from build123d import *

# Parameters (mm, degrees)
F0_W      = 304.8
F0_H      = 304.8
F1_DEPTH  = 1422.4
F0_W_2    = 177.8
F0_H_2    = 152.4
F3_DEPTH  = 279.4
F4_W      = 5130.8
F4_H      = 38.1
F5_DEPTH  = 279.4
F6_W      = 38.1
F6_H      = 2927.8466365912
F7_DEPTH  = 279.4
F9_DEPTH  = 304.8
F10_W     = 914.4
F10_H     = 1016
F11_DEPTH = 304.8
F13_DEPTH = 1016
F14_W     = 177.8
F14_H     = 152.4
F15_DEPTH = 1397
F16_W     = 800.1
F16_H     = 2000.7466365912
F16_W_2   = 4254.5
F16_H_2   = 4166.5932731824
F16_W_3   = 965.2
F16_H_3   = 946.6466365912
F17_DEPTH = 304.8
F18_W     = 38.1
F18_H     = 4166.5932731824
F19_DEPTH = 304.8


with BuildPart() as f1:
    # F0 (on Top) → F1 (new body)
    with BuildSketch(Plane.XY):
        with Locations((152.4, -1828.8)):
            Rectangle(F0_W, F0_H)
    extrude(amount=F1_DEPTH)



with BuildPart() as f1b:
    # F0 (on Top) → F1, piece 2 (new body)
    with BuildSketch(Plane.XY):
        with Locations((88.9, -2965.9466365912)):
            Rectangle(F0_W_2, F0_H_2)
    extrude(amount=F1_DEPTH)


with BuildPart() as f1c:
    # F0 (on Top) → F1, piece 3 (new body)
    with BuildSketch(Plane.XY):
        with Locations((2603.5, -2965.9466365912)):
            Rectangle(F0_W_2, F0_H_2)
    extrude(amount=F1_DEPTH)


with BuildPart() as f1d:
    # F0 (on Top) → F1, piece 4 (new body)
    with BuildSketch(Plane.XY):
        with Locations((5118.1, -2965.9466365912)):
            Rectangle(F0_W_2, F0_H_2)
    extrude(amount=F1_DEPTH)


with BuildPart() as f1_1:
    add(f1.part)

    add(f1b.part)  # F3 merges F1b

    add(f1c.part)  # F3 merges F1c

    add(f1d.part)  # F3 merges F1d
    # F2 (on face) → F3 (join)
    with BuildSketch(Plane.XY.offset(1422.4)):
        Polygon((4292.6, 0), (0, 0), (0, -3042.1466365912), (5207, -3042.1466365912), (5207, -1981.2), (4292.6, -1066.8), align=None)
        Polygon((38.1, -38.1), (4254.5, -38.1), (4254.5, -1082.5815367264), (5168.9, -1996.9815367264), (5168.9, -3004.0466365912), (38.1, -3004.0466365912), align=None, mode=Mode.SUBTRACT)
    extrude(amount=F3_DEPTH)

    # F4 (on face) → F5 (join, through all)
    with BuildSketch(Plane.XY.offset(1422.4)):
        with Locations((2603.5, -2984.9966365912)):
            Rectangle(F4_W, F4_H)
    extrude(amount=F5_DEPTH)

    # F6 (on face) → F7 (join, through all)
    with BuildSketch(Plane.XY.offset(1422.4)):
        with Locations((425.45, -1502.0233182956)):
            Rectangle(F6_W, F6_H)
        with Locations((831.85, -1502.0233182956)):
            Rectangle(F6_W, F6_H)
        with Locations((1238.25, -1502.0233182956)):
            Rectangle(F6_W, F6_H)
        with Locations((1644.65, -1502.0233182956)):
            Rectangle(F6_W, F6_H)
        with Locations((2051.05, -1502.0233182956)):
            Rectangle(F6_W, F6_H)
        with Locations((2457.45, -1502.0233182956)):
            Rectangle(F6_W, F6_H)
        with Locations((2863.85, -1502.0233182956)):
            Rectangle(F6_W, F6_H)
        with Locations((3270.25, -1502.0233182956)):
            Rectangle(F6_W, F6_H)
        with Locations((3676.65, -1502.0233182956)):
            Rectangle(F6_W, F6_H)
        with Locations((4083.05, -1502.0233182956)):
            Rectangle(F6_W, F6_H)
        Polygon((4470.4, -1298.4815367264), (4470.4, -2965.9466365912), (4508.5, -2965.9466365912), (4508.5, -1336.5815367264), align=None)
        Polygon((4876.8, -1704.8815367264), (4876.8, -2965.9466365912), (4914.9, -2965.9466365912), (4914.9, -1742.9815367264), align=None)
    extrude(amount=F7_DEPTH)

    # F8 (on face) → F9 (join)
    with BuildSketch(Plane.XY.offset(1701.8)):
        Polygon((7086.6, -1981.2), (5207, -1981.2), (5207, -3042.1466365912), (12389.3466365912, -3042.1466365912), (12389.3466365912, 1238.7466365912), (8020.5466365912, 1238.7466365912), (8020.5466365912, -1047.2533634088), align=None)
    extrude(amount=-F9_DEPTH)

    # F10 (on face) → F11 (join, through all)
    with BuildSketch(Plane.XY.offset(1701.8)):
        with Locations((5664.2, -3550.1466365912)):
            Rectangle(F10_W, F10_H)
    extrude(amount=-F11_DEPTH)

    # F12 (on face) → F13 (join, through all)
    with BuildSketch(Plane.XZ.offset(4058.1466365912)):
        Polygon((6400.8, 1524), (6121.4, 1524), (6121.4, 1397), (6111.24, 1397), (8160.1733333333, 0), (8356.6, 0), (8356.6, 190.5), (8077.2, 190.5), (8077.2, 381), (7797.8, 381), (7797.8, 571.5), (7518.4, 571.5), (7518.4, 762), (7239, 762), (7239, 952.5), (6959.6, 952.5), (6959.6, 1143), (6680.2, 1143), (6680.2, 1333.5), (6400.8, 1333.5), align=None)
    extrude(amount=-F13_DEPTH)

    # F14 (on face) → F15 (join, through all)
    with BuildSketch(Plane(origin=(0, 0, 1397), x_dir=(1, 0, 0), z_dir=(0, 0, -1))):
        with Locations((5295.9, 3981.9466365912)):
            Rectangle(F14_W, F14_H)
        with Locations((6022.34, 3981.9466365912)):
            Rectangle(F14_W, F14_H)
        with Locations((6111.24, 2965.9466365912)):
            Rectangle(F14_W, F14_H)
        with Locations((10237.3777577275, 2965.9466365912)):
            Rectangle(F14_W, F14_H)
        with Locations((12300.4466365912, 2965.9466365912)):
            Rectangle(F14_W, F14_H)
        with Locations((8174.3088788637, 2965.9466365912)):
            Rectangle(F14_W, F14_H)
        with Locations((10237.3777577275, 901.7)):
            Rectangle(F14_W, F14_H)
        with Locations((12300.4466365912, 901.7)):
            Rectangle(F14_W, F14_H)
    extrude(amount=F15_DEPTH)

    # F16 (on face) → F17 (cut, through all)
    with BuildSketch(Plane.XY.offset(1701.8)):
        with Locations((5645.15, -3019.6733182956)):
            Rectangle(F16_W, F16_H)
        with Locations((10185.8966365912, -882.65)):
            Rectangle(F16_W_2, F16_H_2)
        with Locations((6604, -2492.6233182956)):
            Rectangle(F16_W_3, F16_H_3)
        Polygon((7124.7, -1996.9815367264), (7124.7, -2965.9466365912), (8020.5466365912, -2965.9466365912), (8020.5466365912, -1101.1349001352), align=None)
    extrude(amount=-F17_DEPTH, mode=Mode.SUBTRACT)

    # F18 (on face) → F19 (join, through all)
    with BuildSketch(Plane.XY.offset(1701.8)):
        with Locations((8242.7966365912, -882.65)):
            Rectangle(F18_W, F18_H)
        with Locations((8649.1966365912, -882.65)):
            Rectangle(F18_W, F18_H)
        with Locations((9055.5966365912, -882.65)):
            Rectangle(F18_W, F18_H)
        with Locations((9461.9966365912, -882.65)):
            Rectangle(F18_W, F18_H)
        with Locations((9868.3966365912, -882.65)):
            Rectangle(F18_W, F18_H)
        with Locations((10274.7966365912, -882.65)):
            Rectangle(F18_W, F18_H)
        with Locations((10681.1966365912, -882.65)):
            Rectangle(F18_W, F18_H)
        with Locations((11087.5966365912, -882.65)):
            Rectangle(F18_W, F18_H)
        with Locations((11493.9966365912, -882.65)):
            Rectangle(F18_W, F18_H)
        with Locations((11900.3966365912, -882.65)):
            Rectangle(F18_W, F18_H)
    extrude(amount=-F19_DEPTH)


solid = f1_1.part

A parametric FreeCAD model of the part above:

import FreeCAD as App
import Part
import Sketcher
from FreeCAD import Vector
Q = App.Units.Quantity


def add_polygon(sketch, points):
    """Adds a closed chain of lines whose ends are joined by coincident constraints."""
    first, n = sketch.GeometryCount, len(points)
    for a, b in zip(points, points[1:] + points[:1]):
        sketch.addGeometry(Part.LineSegment(App.Vector(*a, 0), App.Vector(*b, 0)), False)
    for i in range(n):
        sketch.addConstraint(Sketcher.Constraint("Coincident", first + i, 2, first + (i + 1) % n, 1))

doc = App.newDocument("Part")
body = doc.addObject("PartDesign::Body", "Body")

sketch1 = body.newObject("Sketcher::SketchObject", "Sketch")
sketch1.AttachmentSupport = (doc.getObject("XY_Plane"), [""])
sketch1.MapMode = "FlatFace"
add_polygon(sketch1, [(0, -1676), (0, -1981), (305, -1981), (305, -1676)])
sketch1.addConstraint([
    Sketcher.Constraint("Vertical", 0),
    Sketcher.Constraint("Horizontal", 1),
    Sketcher.Constraint("Vertical", 2),
    Sketcher.Constraint("Horizontal", 3),
    Sketcher.Constraint("PointOnObject", 0, 2, -2),
    Sketcher.Constraint("Equal", 3, 0),
    Sketcher.Constraint("DistanceX", 1, 1, 1, 2, Q("12 in")),
    Sketcher.Constraint("DistanceY", 0, 2, -1, 1, Q("78 in")),
])
pad1 = body.newObject("PartDesign::Pad", "Pad")
pad1.Profile = sketch1
pad1.Length = Q("56 in")
body2 = doc.addObject("PartDesign::Body", "Body001")

sketch2 = body2.newObject("Sketcher::SketchObject", "Sketch001")
sketch2.AttachmentSupport = (doc.getObject("XY_Plane001"), [""])
sketch2.MapMode = "FlatFace"
add_polygon(sketch2, [(0, -2890), (0, -3042), (178, -3042), (178, -2890)])
sketch2.addConstraint([
    Sketcher.Constraint("Vertical", 0),
    Sketcher.Constraint("Horizontal", 1),
    Sketcher.Constraint("Vertical", 2),
    Sketcher.Constraint("Horizontal", 3),
    Sketcher.Constraint("PointOnObject", 0, 2, -2),
    Sketcher.Constraint("DistanceX", 1, 1, 1, 2, Q("7 in")),
    Sketcher.Constraint("DistanceY", 0, 2, 0, 1, Q("6 in")),
    Sketcher.Constraint("DistanceY", 0, 2, -1, 1, 3042.146637),
])
pad2 = body2.newObject("PartDesign::Pad", "Pad001")
pad2.Profile = sketch2
pad2.Length = Q("56 in")
body3 = doc.addObject("PartDesign::Body", "Body002")

sketch3 = body3.newObject("Sketcher::SketchObject", "Sketch002")
sketch3.AttachmentSupport = (doc.getObject("XY_Plane002"), [""])
sketch3.MapMode = "FlatFace"
add_polygon(sketch3, [(2515, -2890), (2515, -3042), (2692, -3042), (2692, -2890)])
sketch3.addConstraint([
    Sketcher.Constraint("Vertical", 0),
    Sketcher.Constraint("Horizontal", 1),
    Sketcher.Constraint("Vertical", 2),
    Sketcher.Constraint("Horizontal", 3),
    Sketcher.Constraint("DistanceX", 1, 1, 1, 2, Q("7 in")),
    Sketcher.Constraint("DistanceY", 0, 2, 0, 1, Q("6 in")),
    Sketcher.Constraint("DistanceX", -1, 1, 0, 2, Q("99 in")),
    Sketcher.Constraint("DistanceY", 0, 2, -1, 1, 3042.146637),
])
pad3 = body3.newObject("PartDesign::Pad", "Pad002")
pad3.Profile = sketch3
pad3.Length = Q("56 in")
body4 = doc.addObject("PartDesign::Body", "Body003")

sketch4 = body4.newObject("Sketcher::SketchObject", "Sketch003")
sketch4.AttachmentSupport = (doc.getObject("XY_Plane003"), [""])
sketch4.MapMode = "FlatFace"
add_polygon(sketch4, [(5029, -2890), (5029, -3042), (5207, -3042), (5207, -2890)])
sketch4.addConstraint([
    Sketcher.Constraint("Vertical", 0),
    Sketcher.Constraint("Horizontal", 1),
    Sketcher.Constraint("Vertical", 2),
    Sketcher.Constraint("Horizontal", 3),
    Sketcher.Constraint("DistanceX", 1, 1, 1, 2, Q("7 in")),
    Sketcher.Constraint("DistanceY", 0, 2, 0, 1, Q("6 in")),
    Sketcher.Constraint("DistanceX", -1, 1, 0, 2, Q("198 in")),
    Sketcher.Constraint("DistanceY", 0, 2, -1, 1, 3042.146637),
])
pad4 = body4.newObject("PartDesign::Pad", "Pad003")
pad4.Profile = sketch4
pad4.Length = Q("56 in")
body.AllowCompound = True
doc.recompute()

boolean = body.newObject("PartDesign::Boolean", "Boolean")
boolean.Type = "Fuse"
boolean.addObjects([body2])
doc.recompute()

boolean2 = body.newObject("PartDesign::Boolean", "Boolean001")
boolean2.Type = "Fuse"
boolean2.addObjects([body3])
doc.recompute()

boolean3 = body.newObject("PartDesign::Boolean", "Boolean002")
boolean3.Type = "Fuse"
boolean3.addObjects([body4])

sketch5 = body.newObject("Sketcher::SketchObject", "Sketch004")
sketch5.AttachmentSupport = (doc.getObject("XY_Plane"), [""])
sketch5.MapMode = "FlatFace"
sketch5.AttachmentOffset = App.Placement(Vector(0, 0, 56 * 25.4), App.Rotation())
add_polygon(sketch5, [(4293, 0), (0, 0), (0, -3042), (5207, -3042), (5207, -1981), (4293, -1067)])
add_polygon(sketch5, [(38, -3004), (38, -38), (4254, -38), (4254, -1083), (5169, -1997), (5169, -3004)])
sketch5.addConstraint([
    Sketcher.Constraint("Horizontal", 0),
    Sketcher.Constraint("Vertical", 1),
    Sketcher.Constraint("Horizontal", 2),
    Sketcher.Constraint("Vertical", 3),
    Sketcher.Constraint("Vertical", 5),
    Sketcher.Constraint("Vertical", 6),
    Sketcher.Constraint("Horizontal", 7),
    Sketcher.Constraint("Vertical", 8),
    Sketcher.Constraint("Vertical", 10),
    Sketcher.Constraint("Horizontal", 11),
    Sketcher.Constraint("Coincident", 0, 2, -1, 1),
    Sketcher.Constraint("Parallel", 4, 9),
    Sketcher.Constraint("Equal", 4, 9),
    Sketcher.Constraint("DistanceX", 0, 2, 0, 1, Q("169 in")),
    Sketcher.Constraint("DistanceX", 2, 1, 2, 2, Q("205 in")),
    Sketcher.Constraint("DistanceX", 7, 1, 7, 2, Q("166 in")),
    Sketcher.Constraint("DistanceY", 5, 1, 5, 2, Q("42 in")),
    Sketcher.Constraint("DistanceY", 3, 2, -1, 1, Q("78 in")),
    Sketcher.Constraint("DistanceX", -1, 1, 6, 2, Q("1.5 in")),
    Sketcher.Constraint("DistanceY", 6, 2, -1, 1, Q("1.5 in")),
    Sketcher.Constraint("DistanceY", 2, 2, 10, 2, Q("1.5 in")),
    Sketcher.Constraint("DistanceY", 10, 2, 10, 1, 1007.0651),
    Sketcher.Constraint("DistanceY", 1, 2, 1, 1, 3042.146637),
])
pad5 = body.newObject("PartDesign::Pad", "Pad004")
pad5.Profile = sketch5
pad5.Length = Q("11 in")

sketch6 = body.newObject("Sketcher::SketchObject", "Sketch005")
sketch6.AttachmentSupport = (doc.getObject("XY_Plane"), [""])
sketch6.MapMode = "FlatFace"
sketch6.AttachmentOffset = App.Placement(Vector(0, 0, 56 * 25.4), App.Rotation())
add_polygon(sketch6, [(38, -2966), (38, -3004), (5169, -3004), (5169, -2966)])
sketch6.addConstraint([
    Sketcher.Constraint("Vertical", 0),
    Sketcher.Constraint("Horizontal", 1),
    Sketcher.Constraint("Vertical", 2),
    Sketcher.Constraint("Horizontal", 3),
    Sketcher.Constraint("DistanceX", 1, 1, 1, 2, Q("202 in")),
    Sketcher.Constraint("DistanceY", 0, 2, 0, 1, Q("1.5 in")),
    Sketcher.Constraint("DistanceX", -1, 1, 0, 2, Q("1.5 in")),
    Sketcher.Constraint("DistanceY", 0, 2, -1, 1, 3004.046637),
])
pad6 = body.newObject("PartDesign::Pad", "Pad005")
pad6.Profile = sketch6
pad6.Length = Q("11 in")

sketch7 = body.newObject("Sketcher::SketchObject", "Sketch006")
sketch7.AttachmentSupport = (doc.getObject("XY_Plane"), [""])
sketch7.MapMode = "FlatFace"
sketch7.AttachmentOffset = App.Placement(Vector(0, 0, 56 * 25.4), App.Rotation())
add_polygon(sketch7, [(406, -38), (406, -2966), (444, -2966), (444, -38)])
add_polygon(sketch7, [(813, -38), (813, -2966), (851, -2966), (851, -38)])
add_polygon(sketch7, [(1219, -38), (1219, -2966), (1257, -2966), (1257, -38)])
add_polygon(sketch7, [(1626, -38), (1626, -2966), (1664, -2966), (1664, -38)])
add_polygon(sketch7, [(2032, -38), (2032, -2966), (2070, -2966), (2070, -38)])
add_polygon(sketch7, [(2438, -38), (2438, -2966), (2476, -2966), (2476, -38)])
add_polygon(sketch7, [(2845, -38), (2845, -2966), (2883, -2966), (2883, -38)])
add_polygon(sketch7, [(3251, -38), (3251, -2966), (3289, -2966), (3289, -38)])
add_polygon(sketch7, [(3658, -38), (3658, -2966), (3696, -2966), (3696, -38)])
add_polygon(sketch7, [(4064, -38), (4064, -2966), (4102, -2966), (4102, -38)])
add_polygon(sketch7, [(4470, -1298), (4470, -2966), (4508, -2966), (4508, -1337)])
add_polygon(sketch7, [(4877, -1705), (4877, -2966), (4915, -2966), (4915, -1743)])
sketch7.addConstraint([
    Sketcher.Constraint("Vertical", 0),
    Sketcher.Constraint("Horizontal", 1),
    Sketcher.Constraint("Vertical", 2),
    Sketcher.Constraint("Horizontal", 3),
    Sketcher.Constraint("Vertical", 4),
    Sketcher.Constraint("Horizontal", 5),
    Sketcher.Constraint("Vertical", 6),
    Sketcher.Constraint("Horizontal", 7),
    Sketcher.Constraint("Vertical", 8),
    Sketcher.Constraint("Horizontal", 9),
    Sketcher.Constraint("Vertical", 10),
    Sketcher.Constraint("Horizontal", 11),
    Sketcher.Constraint("Vertical", 12),
    Sketcher.Constraint("Horizontal", 13),
    Sketcher.Constraint("Vertical", 14),
    Sketcher.Constraint("Horizontal", 15),
    Sketcher.Constraint("Vertical", 16),
    Sketcher.Constraint("Horizontal", 17),
    Sketcher.Constraint("Vertical", 18),
    Sketcher.Constraint("Horizontal", 19),
    Sketcher.Constraint("Vertical", 20),
    Sketcher.Constraint("Horizontal", 21),
    Sketcher.Constraint("Vertical", 22),
    Sketcher.Constraint("Horizontal", 23),
    Sketcher.Constraint("Vertical", 24),
    Sketcher.Constraint("Horizontal", 25),
    Sketcher.Constraint("Vertical", 26),
    Sketcher.Constraint("Horizontal", 27),
    Sketcher.Constraint("Vertical", 28),
    Sketcher.Constraint("Horizontal", 29),
    Sketcher.Constraint("Vertical", 30),
    Sketcher.Constraint("Horizontal", 31),
    Sketcher.Constraint("Vertical", 32),
    Sketcher.Constraint("Horizontal", 33),
    Sketcher.Constraint("Vertical", 34),
    Sketcher.Constraint("Horizontal", 35),
    Sketcher.Constraint("Vertical", 36),
    Sketcher.Constraint("Horizontal", 37),
    Sketcher.Constraint("Vertical", 38),
    Sketcher.Constraint("Horizontal", 39),
    Sketcher.Constraint("Vertical", 40),
    Sketcher.Constraint("Horizontal", 41),
    Sketcher.Constraint("Vertical", 42),
    Sketcher.Constraint("Vertical", 44),
    Sketcher.Constraint("Horizontal", 45),
    Sketcher.Constraint("Vertical", 46),
    Sketcher.Constraint("Parallel", 43, 47),
    Sketcher.Constraint("Horizontal", 1, 2, 4, 2),
    Sketcher.Constraint("Horizontal", 3, 2, 6, 2),
    Sketcher.Constraint("Horizontal", 5, 2, 8, 2),
    Sketcher.Constraint("Horizontal", 7, 2, 10, 2),
    Sketcher.Constraint("Horizontal", 9, 2, 12, 2),
    Sketcher.Constraint("Horizontal", 11, 2, 14, 2),
    Sketcher.Constraint("Horizontal", 13, 2, 16, 2),
    Sketcher.Constraint("Horizontal", 15, 2, 18, 2),
    Sketcher.Constraint("Horizontal", 17, 2, 20, 2),
    Sketcher.Constraint("Horizontal", 19, 2, 22, 2),
    Sketcher.Constraint("Horizontal", 21, 2, 24, 2),
    Sketcher.Constraint("Horizontal", 23, 2, 26, 2),
    Sketcher.Constraint("Horizontal", 25, 2, 28, 2),
    Sketcher.Constraint("Horizontal", 27, 2, 30, 2),
    Sketcher.Constraint("Horizontal", 29, 2, 32, 2),
    Sketcher.Constraint("Horizontal", 31, 2, 34, 2),
    Sketcher.Constraint("Horizontal", 33, 2, 36, 2),
    Sketcher.Constraint("Horizontal", 35, 2, 38, 2),
    Sketcher.Constraint("Horizontal", 37, 2, 40, 2),
    Sketcher.Constraint("Horizontal", 41, 2, 44, 2),
    Sketcher.Constraint("Equal", 3, 5),
    Sketcher.Constraint("Equal", 7, 9),
    Sketcher.Constraint("Equal", 11, 13),
    Sketcher.Constraint("Equal", 15, 17),
    Sketcher.Constraint("Equal", 19, 21),
    Sketcher.Constraint("Equal", 23, 25),
    Sketcher.Constraint("Equal", 27, 29),
    Sketcher.Constraint("Equal", 31, 33),
    Sketcher.Constraint("Equal", 35, 37),
    Sketcher.Constraint("Equal", 39, 41),
    Sketcher.Constraint("Equal", 41, 45),
    Sketcher.Constraint("DistanceX", 1, 1, 1, 2, Q("1.5 in")),
    Sketcher.Constraint("DistanceX", -1, 1, 0, 2, Q("16 in")),
    Sketcher.Constraint("DistanceX", -1, 1, 4, 2, Q("32 in")),
    Sketcher.Constraint("DistanceX", -1, 1, 8, 2, Q("48 in")),
    Sketcher.Constraint("DistanceX", -1, 1, 12, 2, Q("64 in")),
    Sketcher.Constraint("DistanceX", -1, 1, 16, 2, Q("80 in")),
    Sketcher.Constraint("DistanceX", -1, 1, 20, 2, Q("96 in")),
    Sketcher.Constraint("DistanceX", -1, 1, 24, 2, Q("112 in")),
    Sketcher.Constraint("DistanceX", -1, 1, 28, 2, Q("128 in")),
    Sketcher.Constraint("DistanceX", -1, 1, 32, 2, Q("144 in")),
    Sketcher.Constraint("DistanceX", -1, 1, 36, 2, Q("160 in")),
    Sketcher.Constraint("DistanceX", -1, 1, 40, 2, Q("176 in")),
    Sketcher.Constraint("DistanceX", -1, 1, 44, 2, Q("192 in")),
    Sketcher.Constraint("Angle", 43, Q("135 deg")),
    Sketcher.Constraint("DistanceY", 46, 2, 42, 2, Q("16 in")),
    Sketcher.Constraint("DistanceY", 2, 2, -1, 1, Q("1.5 in")),
    Sketcher.Constraint("DistanceY", 40, 2, 40, 1, 1667.4651),
    Sketcher.Constraint("DistanceY", 0, 2, 0, 1, 2927.846637),
])
pad7 = body.newObject("PartDesign::Pad", "Pad006")
pad7.Profile = sketch7
pad7.Length = Q("11 in")

sketch8 = body.newObject("Sketcher::SketchObject", "Sketch007")
sketch8.AttachmentSupport = (doc.getObject("XY_Plane"), [""])
sketch8.MapMode = "FlatFace"
sketch8.AttachmentOffset = App.Placement(Vector(0, 0, 67 * 25.4), App.Rotation())
add_polygon(sketch8, [(7087, -1981), (5207, -1981), (5207, -3042), (12389, -3042), (12389, 1239), (8021, 1239), (8021, -1047)])
sketch8.addConstraint([
    Sketcher.Constraint("Horizontal", 0),
    Sketcher.Constraint("Vertical", 1),
    Sketcher.Constraint("Horizontal", 2),
    Sketcher.Constraint("Vertical", 3),
    Sketcher.Constraint("Horizontal", 4),
    Sketcher.Constraint("Vertical", 5),
    Sketcher.Constraint("DistanceX", 0, 2, 0, 1, Q("74 in")),
    Sketcher.Constraint("DistanceX", 4, 2, 4, 1, Q("172 in")),
    Sketcher.Constraint("DistanceY", 5, 2, 5, 1, Q("90 in")),
    Sketcher.Constraint("Distance", 6, Q("52 in")),
    Sketcher.Constraint("DistanceX", -1, 1, 0, 2, Q("205 in")),
    Sketcher.Constraint("DistanceY", 0, 2, -1, 1, Q("78 in")),
    Sketcher.Constraint("Angle", 6, Q("-135 deg")),
    Sketcher.Constraint("DistanceY", 1, 2, 1, 1, 1060.946637),
])
pad8 = body.newObject("PartDesign::Pad", "Pad007")
pad8.Profile = sketch8
pad8.Length = Q("12 in")
pad8.Reversed = True

sketch9 = body.newObject("Sketcher::SketchObject", "Sketch008")
sketch9.AttachmentSupport = (doc.getObject("XY_Plane"), [""])
sketch9.MapMode = "FlatFace"
sketch9.AttachmentOffset = App.Placement(Vector(0, 0, 67 * 25.4), App.Rotation())
add_polygon(sketch9, [(5207, -3042), (5207, -4058), (6121, -4058), (6121, -3042)])
sketch9.addConstraint([
    Sketcher.Constraint("Vertical", 0),
    Sketcher.Constraint("Horizontal", 1),
    Sketcher.Constraint("Vertical", 2),
    Sketcher.Constraint("Horizontal", 3),
    Sketcher.Constraint("DistanceX", 1, 1, 1, 2, Q("36 in")),
    Sketcher.Constraint("DistanceY", 0, 2, 0, 1, Q("40 in")),
    Sketcher.Constraint("DistanceX", -1, 1, 0, 2, Q("205 in")),
    Sketcher.Constraint("DistanceY", 0, 2, -1, 1, 4058.146637),
])
pad9 = body.newObject("PartDesign::Pad", "Pad008")
pad9.Profile = sketch9
pad9.Length = Q("12 in")
pad9.Reversed = True

sketch10 = body.newObject("Sketcher::SketchObject", "Sketch009")
sketch10.AttachmentSupport = (doc.getObject("XZ_Plane"), [""])
sketch10.MapMode = "FlatFace"
sketch10.AttachmentOffset = App.Placement(Vector(0, 0, 4058.146637), App.Rotation())
add_polygon(sketch10, [(6401, 1524), (6121, 1524), (6121, 1397), (6111, 1397), (8160, 0), (8357, 0), (8357, 190), (8077, 190), (8077, 381), (7798, 381), (7798, 572), (7518, 572), (7518, 762), (7239, 762), (7239, 952), (6960, 952), (6960, 1143), (6680, 1143), (6680, 1334), (6401, 1334)])
sketch10.addConstraint([
    Sketcher.Constraint("Horizontal", 0),
    Sketcher.Constraint("Vertical", 1),
    Sketcher.Constraint("Horizontal", 2),
    Sketcher.Constraint("Horizontal", 4),
    Sketcher.Constraint("Vertical", 5),
    Sketcher.Constraint("Horizontal", 6),
    Sketcher.Constraint("Vertical", 7),
    Sketcher.Constraint("Horizontal", 8),
    Sketcher.Constraint("Vertical", 9),
    Sketcher.Constraint("Horizontal", 10),
    Sketcher.Constraint("Vertical", 11),
    Sketcher.Constraint("Horizontal", 12),
    Sketcher.Constraint("Vertical", 13),
    Sketcher.Constraint("Horizontal", 14),
    Sketcher.Constraint("Vertical", 15),
    Sketcher.Constraint("Horizontal", 16),
    Sketcher.Constraint("Vertical", 17),
    Sketcher.Constraint("Horizontal", 18),
    Sketcher.Constraint("Vertical", 19),
    Sketcher.Constraint("PointOnObject", 3, 2, -1),
    Sketcher.Constraint("Equal", 0, 6),
    Sketcher.Constraint("Equal", 6, 8),
    Sketcher.Constraint("Equal", 8, 10),
    Sketcher.Constraint("Equal", 10, 12),
    Sketcher.Constraint("Equal", 12, 14),
    Sketcher.Constraint("Equal", 14, 16),
    Sketcher.Constraint("Equal", 16, 18),
    Sketcher.Constraint("Equal", 5, 7),
    Sketcher.Constraint("Equal", 7, 9),
    Sketcher.Constraint("Equal", 9, 11),
    Sketcher.Constraint("Equal", 11, 13),
    Sketcher.Constraint("Equal", 13, 15),
    Sketcher.Constraint("Equal", 15, 17),
    Sketcher.Constraint("Equal", 17, 19),
    Sketcher.Constraint("DistanceX", 0, 2, 0, 1, Q("11 in")),
    Sketcher.Constraint("DistanceY", 1, 2, 1, 1, Q("5 in")),
    Sketcher.Constraint("DistanceX", 2, 2, 2, 1, Q("0.4 in")),
    Sketcher.Constraint("DistanceY", 5, 1, 5, 2, Q("7.5 in")),
    Sketcher.Constraint("DistanceX", -1, 1, 0, 2, Q("241 in")),
    Sketcher.Constraint("DistanceX", 4, 1, 4, 2, 196.426667),
])
pad10 = body.newObject("PartDesign::Pad", "Pad009")
pad10.Profile = sketch10
pad10.Length = Q("40 in")
pad10.Reversed = True

sketch11 = body.newObject("Sketcher::SketchObject", "Sketch010")
sketch11.AttachmentSupport = (doc.getObject("XY_Plane"), [""])
sketch11.MapMode = "FlatFace"
sketch11.AttachmentOffset = App.Placement(Vector(0, 0, 55 * 25.4), App.Rotation())
add_polygon(sketch11, [(5207, -4058), (5207, -3906), (5385, -3906), (5385, -4058)])
add_polygon(sketch11, [(5933, -4058), (5933, -3906), (6111, -3906), (6111, -4058)])
add_polygon(sketch11, [(6022, -3042), (6022, -2890), (6200, -2890), (6200, -3042)])
add_polygon(sketch11, [(10148, -3042), (10148, -2890), (10326, -2890), (10326, -3042)])
add_polygon(sketch11, [(12212, -3042), (12212, -2890), (12389, -2890), (12389, -3042)])
add_polygon(sketch11, [(8085, -3042), (8085, -2890), (8263, -2890), (8263, -3042)])
add_polygon(sketch11, [(10148, -978), (10148, -826), (10326, -826), (10326, -978)])
add_polygon(sketch11, [(12212, -978), (12212, -826), (12389, -826), (12389, -978)])
sketch11.addConstraint([
    Sketcher.Constraint("Vertical", 0),
    Sketcher.Constraint("Horizontal", 1),
    Sketcher.Constraint("Vertical", 2),
    Sketcher.Constraint("Horizontal", 3),
    Sketcher.Constraint("Vertical", 4),
    Sketcher.Constraint("Horizontal", 5),
    Sketcher.Constraint("Vertical", 6),
    Sketcher.Constraint("Horizontal", 7),
    Sketcher.Constraint("Vertical", 8),
    Sketcher.Constraint("Horizontal", 9),
    Sketcher.Constraint("Vertical", 10),
    Sketcher.Constraint("Horizontal", 11),
    Sketcher.Constraint("Vertical", 12),
    Sketcher.Constraint("Horizontal", 13),
    Sketcher.Constraint("Vertical", 14),
    Sketcher.Constraint("Horizontal", 15),
    Sketcher.Constraint("Vertical", 16),
    Sketcher.Constraint("Horizontal", 17),
    Sketcher.Constraint("Vertical", 18),
    Sketcher.Constraint("Horizontal", 19),
    Sketcher.Constraint("Vertical", 20),
    Sketcher.Constraint("Horizontal", 21),
    Sketcher.Constraint("Vertical", 22),
    Sketcher.Constraint("Horizontal", 23),
    Sketcher.Constraint("Vertical", 24),
    Sketcher.Constraint("Horizontal", 25),
    Sketcher.Constraint("Vertical", 26),
    Sketcher.Constraint("Horizontal", 27),
    Sketcher.Constraint("Vertical", 28),
    Sketcher.Constraint("Horizontal", 29),
    Sketcher.Constraint("Vertical", 30),
    Sketcher.Constraint("Horizontal", 31),
    Sketcher.Constraint("Horizontal", 1, 2, 4, 2),
    Sketcher.Constraint("Horizontal", 3, 2, 6, 2),
    Sketcher.Constraint("Horizontal", 9, 2, 12, 2),
    Sketcher.Constraint("Horizontal", 11, 2, 14, 2),
    Sketcher.Constraint("Horizontal", 13, 2, 16, 2),
    Sketcher.Constraint("Horizontal", 15, 2, 18, 2),
    Sketcher.Constraint("Horizontal", 17, 2, 20, 2),
    Sketcher.Constraint("Horizontal", 19, 2, 22, 2),
    Sketcher.Constraint("Horizontal", 25, 2, 28, 2),
    Sketcher.Constraint("Horizontal", 27, 2, 30, 2),
    Sketcher.Constraint("Vertical", 15, 2, 24, 2),
    Sketcher.Constraint("Vertical", 14, 2, 25, 2),
    Sketcher.Constraint("Vertical", 19, 2, 28, 2),
    Sketcher.Constraint("Vertical", 18, 2, 29, 2),
    Sketcher.Constraint("Equal", 3, 5),
    Sketcher.Constraint("Equal", 7, 9),
    Sketcher.Constraint("Equal", 11, 13),
    Sketcher.Constraint("Equal", 15, 17),
    Sketcher.Constraint("Equal", 19, 21),
    Sketcher.Constraint("Equal", 6, 8),
    Sketcher.Constraint("Equal", 22, 24),
    Sketcher.Constraint("DistanceX", 1, 1, 1, 2, Q("7 in")),
    Sketcher.Constraint("DistanceY", 0, 1, 0, 2, Q("6 in")),
    Sketcher.Constraint("DistanceX", -1, 1, 0, 2, Q("205 in")),
    Sketcher.Constraint("DistanceY", 5, 2, 8, 2, Q("40 in")),
    Sketcher.Constraint("DistanceX", -1, 1, 4, 2, Q("233.6 in")),
    Sketcher.Constraint("DistanceX", -1, 1, 8, 2, Q("237.1 in")),
    Sketcher.Constraint("DistanceY", 24, 2, -1, 1, Q("32.5 in")),
    Sketcher.Constraint("DistanceX", -1, 1, 20, 2, 8085.408879),
    Sketcher.Constraint("DistanceX", 13, 2, 16, 2, 1885.268879),
    Sketcher.Constraint("DistanceX", 20, 2, 12, 2, 2063.068879),
    Sketcher.Constraint("DistanceY", 0, 2, -1, 1, 3905.746637),
])
pad11 = body.newObject("PartDesign::Pad", "Pad010")
pad11.Profile = sketch11
pad11.Length = Q("55 in")
pad11.Reversed = True

sketch12 = body.newObject("Sketcher::SketchObject", "Sketch011")
sketch12.AttachmentSupport = (doc.getObject("XY_Plane"), [""])
sketch12.MapMode = "FlatFace"
sketch12.AttachmentOffset = App.Placement(Vector(0, 0, 67 * 25.4), App.Rotation())
add_polygon(sketch12, [(5245, -2019), (5245, -4020), (6045, -4020), (6045, -2019)])
add_polygon(sketch12, [(8059, 1201), (8059, -2966), (12313, -2966), (12313, 1201)])
add_polygon(sketch12, [(6121, -2019), (6121, -2966), (7087, -2966), (7087, -2019)])
add_polygon(sketch12, [(7125, -1997), (7125, -2966), (8021, -2966), (8021, -1101)])
sketch12.addConstraint([
    Sketcher.Constraint("Vertical", 0),
    Sketcher.Constraint("Horizontal", 1),
    Sketcher.Constraint("Vertical", 2),
    Sketcher.Constraint("Horizontal", 3),
    Sketcher.Constraint("Vertical", 4),
    Sketcher.Constraint("Horizontal", 5),
    Sketcher.Constraint("Vertical", 6),
    Sketcher.Constraint("Horizontal", 7),
    Sketcher.Constraint("Vertical", 8),
    Sketcher.Constraint("Horizontal", 9),
    Sketcher.Constraint("Vertical", 10),
    Sketcher.Constraint("Horizontal", 11),
    Sketcher.Constraint("Vertical", 12),
    Sketcher.Constraint("Horizontal", 13),
    Sketcher.Constraint("Vertical", 14),
    Sketcher.Constraint("Horizontal", 5, 2, 8, 2),
    Sketcher.Constraint("Horizontal", 3, 2, 10, 2),
    Sketcher.Constraint("Horizontal", 9, 2, 12, 2),
    Sketcher.Constraint("DistanceX", 9, 1, 9, 2, Q("38 in")),
    Sketcher.Constraint("DistanceX", 1, 1, 1, 2, Q("31.5 in")),
    Sketcher.Constraint("DistanceX", 5, 1, 5, 2, Q("167.5 in")),
    Sketcher.Constraint("DistanceX", -1, 1, 1, 2, Q("238 in")),
    Sketcher.Constraint("DistanceX", -1, 1, 8, 2, Q("241 in")),
    Sketcher.Constraint("Angle", 15, Q("-135 deg")),
    Sketcher.Constraint("DistanceY", 2, 2, -1, 1, Q("79.5 in")),
    Sketcher.Constraint("DistanceX", -1, 1, 12, 2, Q("280.5 in")),
    Sketcher.Constraint("DistanceY", 1, 2, 4, 2, Q("41.5 in")),
    Sketcher.Constraint("DistanceX", 13, 2, 4, 2, Q("1.5 in")),
    Sketcher.Constraint("DistanceY", 12, 2, 12, 1, 968.9651),
    Sketcher.Constraint("DistanceY", 14, 2, -1, 1, 1101.1349),
    Sketcher.Constraint("DistanceX", 13, 1, 13, 2, 895.846637),
    Sketcher.Constraint("DistanceY", 4, 2, 4, 1, 4166.593273),
])
pocket1 = body.newObject("PartDesign::Pocket", "Pocket")
pocket1.Profile = sketch12
pocket1.Length = Q("12 in")

sketch13 = body.newObject("Sketcher::SketchObject", "Sketch012")
sketch13.AttachmentSupport = (doc.getObject("XY_Plane"), [""])
sketch13.MapMode = "FlatFace"
sketch13.AttachmentOffset = App.Placement(Vector(0, 0, 67 * 25.4), App.Rotation())
add_polygon(sketch13, [(8224, 1201), (8224, -2966), (8262, -2966), (8262, 1201)])
add_polygon(sketch13, [(8630, 1201), (8630, -2966), (8668, -2966), (8668, 1201)])
add_polygon(sketch13, [(9037, 1201), (9037, -2966), (9075, -2966), (9075, 1201)])
add_polygon(sketch13, [(9443, 1201), (9443, -2966), (9481, -2966), (9481, 1201)])
add_polygon(sketch13, [(9849, 1201), (9849, -2966), (9887, -2966), (9887, 1201)])
add_polygon(sketch13, [(10256, 1201), (10256, -2966), (10294, -2966), (10294, 1201)])
add_polygon(sketch13, [(10662, 1201), (10662, -2966), (10700, -2966), (10700, 1201)])
add_polygon(sketch13, [(11069, 1201), (11069, -2966), (11107, -2966), (11107, 1201)])
add_polygon(sketch13, [(11475, 1201), (11475, -2966), (11513, -2966), (11513, 1201)])
add_polygon(sketch13, [(11881, 1201), (11881, -2966), (11919, -2966), (11919, 1201)])
sketch13.addConstraint([
    Sketcher.Constraint("Vertical", 0),
    Sketcher.Constraint("Horizontal", 1),
    Sketcher.Constraint("Vertical", 2),
    Sketcher.Constraint("Horizontal", 3),
    Sketcher.Constraint("Vertical", 4),
    Sketcher.Constraint("Horizontal", 5),
    Sketcher.Constraint("Vertical", 6),
    Sketcher.Constraint("Horizontal", 7),
    Sketcher.Constraint("Vertical", 8),
    Sketcher.Constraint("Horizontal", 9),
    Sketcher.Constraint("Vertical", 10),
    Sketcher.Constraint("Horizontal", 11),
    Sketcher.Constraint("Vertical", 12),
    Sketcher.Constraint("Horizontal", 13),
    Sketcher.Constraint("Vertical", 14),
    Sketcher.Constraint("Horizontal", 15),
    Sketcher.Constraint("Vertical", 16),
    Sketcher.Constraint("Horizontal", 17),
    Sketcher.Constraint("Vertical", 18),
    Sketcher.Constraint("Horizontal", 19),
    Sketcher.Constraint("Vertical", 20),
    Sketcher.Constraint("Horizontal", 21),
    Sketcher.Constraint("Vertical", 22),
    Sketcher.Constraint("Horizontal", 23),
    Sketcher.Constraint("Vertical", 24),
    Sketcher.Constraint("Horizontal", 25),
    Sketcher.Constraint("Vertical", 26),
    Sketcher.Constraint("Horizontal", 27),
    Sketcher.Constraint("Vertical", 28),
    Sketcher.Constraint("Horizontal", 29),
    Sketcher.Constraint("Vertical", 30),
    Sketcher.Constraint("Horizontal", 31),
    Sketcher.Constraint("Vertical", 32),
    Sketcher.Constraint("Horizontal", 33),
    Sketcher.Constraint("Vertical", 34),
    Sketcher.Constraint("Horizontal", 35),
    Sketcher.Constraint("Vertical", 36),
    Sketcher.Constraint("Horizontal", 37),
    Sketcher.Constraint("Vertical", 38),
    Sketcher.Constraint("Horizontal", 39),
    Sketcher.Constraint("Horizontal", 1, 2, 4, 2),
    Sketcher.Constraint("Horizontal", 3, 2, 6, 2),
    Sketcher.Constraint("Horizontal", 5, 2, 8, 2),
    Sketcher.Constraint("Horizontal", 7, 2, 10, 2),
    Sketcher.Constraint("Horizontal", 9, 2, 12, 2),
    Sketcher.Constraint("Horizontal", 11, 2, 14, 2),
    Sketcher.Constraint("Horizontal", 13, 2, 16, 2),
    Sketcher.Constraint("Horizontal", 15, 2, 18, 2),
    Sketcher.Constraint("Horizontal", 17, 2, 20, 2),
    Sketcher.Constraint("Horizontal", 19, 2, 22, 2),
    Sketcher.Constraint("Horizontal", 21, 2, 24, 2),
    Sketcher.Constraint("Horizontal", 23, 2, 26, 2),
    Sketcher.Constraint("Horizontal", 25, 2, 28, 2),
    Sketcher.Constraint("Horizontal", 27, 2, 30, 2),
    Sketcher.Constraint("Horizontal", 29, 2, 32, 2),
    Sketcher.Constraint("Horizontal", 31, 2, 34, 2),
    Sketcher.Constraint("Horizontal", 33, 2, 36, 2),
    Sketcher.Constraint("Horizontal", 35, 2, 38, 2),
    Sketcher.Constraint("Equal", 3, 5),
    Sketcher.Constraint("Equal", 7, 9),
    Sketcher.Constraint("Equal", 11, 13),
    Sketcher.Constraint("Equal", 15, 17),
    Sketcher.Constraint("Equal", 19, 21),
    Sketcher.Constraint("Equal", 23, 25),
    Sketcher.Constraint("Equal", 27, 29),
    Sketcher.Constraint("Equal", 31, 33),
    Sketcher.Constraint("Equal", 35, 37),
    Sketcher.Constraint("DistanceX", 1, 1, 1, 2, Q("1.5 in")),
    Sketcher.Constraint("DistanceX", 0, 2, 4, 2, Q("16 in")),
    Sketcher.Constraint("DistanceX", 4, 2, 8, 2, Q("16 in")),
    Sketcher.Constraint("DistanceX", 8, 2, 12, 2, Q("16 in")),
    Sketcher.Constraint("DistanceX", 12, 2, 16, 2, Q("16 in")),
    Sketcher.Constraint("DistanceX", 16, 2, 20, 2, Q("16 in")),
    Sketcher.Constraint("DistanceX", 20, 2, 24, 2, Q("16 in")),
    Sketcher.Constraint("DistanceX", 24, 2, 28, 2, Q("16 in")),
    Sketcher.Constraint("DistanceX", 28, 2, 32, 2, Q("16 in")),
    Sketcher.Constraint("DistanceX", 32, 2, 36, 2, Q("16 in")),
    Sketcher.Constraint("DistanceY", 0, 2, 0, 1, 4166.593273),
    Sketcher.Constraint("DistanceX", -1, 1, 0, 2, 8223.746637),
    Sketcher.Constraint("DistanceY", 0, 2, -1, 1, 2965.946637),
])
pad12 = body.newObject("PartDesign::Pad", "Pad011")
pad12.Profile = sketch13
pad12.Length = Q("12 in")
pad12.Reversed = True

doc.recompute()
